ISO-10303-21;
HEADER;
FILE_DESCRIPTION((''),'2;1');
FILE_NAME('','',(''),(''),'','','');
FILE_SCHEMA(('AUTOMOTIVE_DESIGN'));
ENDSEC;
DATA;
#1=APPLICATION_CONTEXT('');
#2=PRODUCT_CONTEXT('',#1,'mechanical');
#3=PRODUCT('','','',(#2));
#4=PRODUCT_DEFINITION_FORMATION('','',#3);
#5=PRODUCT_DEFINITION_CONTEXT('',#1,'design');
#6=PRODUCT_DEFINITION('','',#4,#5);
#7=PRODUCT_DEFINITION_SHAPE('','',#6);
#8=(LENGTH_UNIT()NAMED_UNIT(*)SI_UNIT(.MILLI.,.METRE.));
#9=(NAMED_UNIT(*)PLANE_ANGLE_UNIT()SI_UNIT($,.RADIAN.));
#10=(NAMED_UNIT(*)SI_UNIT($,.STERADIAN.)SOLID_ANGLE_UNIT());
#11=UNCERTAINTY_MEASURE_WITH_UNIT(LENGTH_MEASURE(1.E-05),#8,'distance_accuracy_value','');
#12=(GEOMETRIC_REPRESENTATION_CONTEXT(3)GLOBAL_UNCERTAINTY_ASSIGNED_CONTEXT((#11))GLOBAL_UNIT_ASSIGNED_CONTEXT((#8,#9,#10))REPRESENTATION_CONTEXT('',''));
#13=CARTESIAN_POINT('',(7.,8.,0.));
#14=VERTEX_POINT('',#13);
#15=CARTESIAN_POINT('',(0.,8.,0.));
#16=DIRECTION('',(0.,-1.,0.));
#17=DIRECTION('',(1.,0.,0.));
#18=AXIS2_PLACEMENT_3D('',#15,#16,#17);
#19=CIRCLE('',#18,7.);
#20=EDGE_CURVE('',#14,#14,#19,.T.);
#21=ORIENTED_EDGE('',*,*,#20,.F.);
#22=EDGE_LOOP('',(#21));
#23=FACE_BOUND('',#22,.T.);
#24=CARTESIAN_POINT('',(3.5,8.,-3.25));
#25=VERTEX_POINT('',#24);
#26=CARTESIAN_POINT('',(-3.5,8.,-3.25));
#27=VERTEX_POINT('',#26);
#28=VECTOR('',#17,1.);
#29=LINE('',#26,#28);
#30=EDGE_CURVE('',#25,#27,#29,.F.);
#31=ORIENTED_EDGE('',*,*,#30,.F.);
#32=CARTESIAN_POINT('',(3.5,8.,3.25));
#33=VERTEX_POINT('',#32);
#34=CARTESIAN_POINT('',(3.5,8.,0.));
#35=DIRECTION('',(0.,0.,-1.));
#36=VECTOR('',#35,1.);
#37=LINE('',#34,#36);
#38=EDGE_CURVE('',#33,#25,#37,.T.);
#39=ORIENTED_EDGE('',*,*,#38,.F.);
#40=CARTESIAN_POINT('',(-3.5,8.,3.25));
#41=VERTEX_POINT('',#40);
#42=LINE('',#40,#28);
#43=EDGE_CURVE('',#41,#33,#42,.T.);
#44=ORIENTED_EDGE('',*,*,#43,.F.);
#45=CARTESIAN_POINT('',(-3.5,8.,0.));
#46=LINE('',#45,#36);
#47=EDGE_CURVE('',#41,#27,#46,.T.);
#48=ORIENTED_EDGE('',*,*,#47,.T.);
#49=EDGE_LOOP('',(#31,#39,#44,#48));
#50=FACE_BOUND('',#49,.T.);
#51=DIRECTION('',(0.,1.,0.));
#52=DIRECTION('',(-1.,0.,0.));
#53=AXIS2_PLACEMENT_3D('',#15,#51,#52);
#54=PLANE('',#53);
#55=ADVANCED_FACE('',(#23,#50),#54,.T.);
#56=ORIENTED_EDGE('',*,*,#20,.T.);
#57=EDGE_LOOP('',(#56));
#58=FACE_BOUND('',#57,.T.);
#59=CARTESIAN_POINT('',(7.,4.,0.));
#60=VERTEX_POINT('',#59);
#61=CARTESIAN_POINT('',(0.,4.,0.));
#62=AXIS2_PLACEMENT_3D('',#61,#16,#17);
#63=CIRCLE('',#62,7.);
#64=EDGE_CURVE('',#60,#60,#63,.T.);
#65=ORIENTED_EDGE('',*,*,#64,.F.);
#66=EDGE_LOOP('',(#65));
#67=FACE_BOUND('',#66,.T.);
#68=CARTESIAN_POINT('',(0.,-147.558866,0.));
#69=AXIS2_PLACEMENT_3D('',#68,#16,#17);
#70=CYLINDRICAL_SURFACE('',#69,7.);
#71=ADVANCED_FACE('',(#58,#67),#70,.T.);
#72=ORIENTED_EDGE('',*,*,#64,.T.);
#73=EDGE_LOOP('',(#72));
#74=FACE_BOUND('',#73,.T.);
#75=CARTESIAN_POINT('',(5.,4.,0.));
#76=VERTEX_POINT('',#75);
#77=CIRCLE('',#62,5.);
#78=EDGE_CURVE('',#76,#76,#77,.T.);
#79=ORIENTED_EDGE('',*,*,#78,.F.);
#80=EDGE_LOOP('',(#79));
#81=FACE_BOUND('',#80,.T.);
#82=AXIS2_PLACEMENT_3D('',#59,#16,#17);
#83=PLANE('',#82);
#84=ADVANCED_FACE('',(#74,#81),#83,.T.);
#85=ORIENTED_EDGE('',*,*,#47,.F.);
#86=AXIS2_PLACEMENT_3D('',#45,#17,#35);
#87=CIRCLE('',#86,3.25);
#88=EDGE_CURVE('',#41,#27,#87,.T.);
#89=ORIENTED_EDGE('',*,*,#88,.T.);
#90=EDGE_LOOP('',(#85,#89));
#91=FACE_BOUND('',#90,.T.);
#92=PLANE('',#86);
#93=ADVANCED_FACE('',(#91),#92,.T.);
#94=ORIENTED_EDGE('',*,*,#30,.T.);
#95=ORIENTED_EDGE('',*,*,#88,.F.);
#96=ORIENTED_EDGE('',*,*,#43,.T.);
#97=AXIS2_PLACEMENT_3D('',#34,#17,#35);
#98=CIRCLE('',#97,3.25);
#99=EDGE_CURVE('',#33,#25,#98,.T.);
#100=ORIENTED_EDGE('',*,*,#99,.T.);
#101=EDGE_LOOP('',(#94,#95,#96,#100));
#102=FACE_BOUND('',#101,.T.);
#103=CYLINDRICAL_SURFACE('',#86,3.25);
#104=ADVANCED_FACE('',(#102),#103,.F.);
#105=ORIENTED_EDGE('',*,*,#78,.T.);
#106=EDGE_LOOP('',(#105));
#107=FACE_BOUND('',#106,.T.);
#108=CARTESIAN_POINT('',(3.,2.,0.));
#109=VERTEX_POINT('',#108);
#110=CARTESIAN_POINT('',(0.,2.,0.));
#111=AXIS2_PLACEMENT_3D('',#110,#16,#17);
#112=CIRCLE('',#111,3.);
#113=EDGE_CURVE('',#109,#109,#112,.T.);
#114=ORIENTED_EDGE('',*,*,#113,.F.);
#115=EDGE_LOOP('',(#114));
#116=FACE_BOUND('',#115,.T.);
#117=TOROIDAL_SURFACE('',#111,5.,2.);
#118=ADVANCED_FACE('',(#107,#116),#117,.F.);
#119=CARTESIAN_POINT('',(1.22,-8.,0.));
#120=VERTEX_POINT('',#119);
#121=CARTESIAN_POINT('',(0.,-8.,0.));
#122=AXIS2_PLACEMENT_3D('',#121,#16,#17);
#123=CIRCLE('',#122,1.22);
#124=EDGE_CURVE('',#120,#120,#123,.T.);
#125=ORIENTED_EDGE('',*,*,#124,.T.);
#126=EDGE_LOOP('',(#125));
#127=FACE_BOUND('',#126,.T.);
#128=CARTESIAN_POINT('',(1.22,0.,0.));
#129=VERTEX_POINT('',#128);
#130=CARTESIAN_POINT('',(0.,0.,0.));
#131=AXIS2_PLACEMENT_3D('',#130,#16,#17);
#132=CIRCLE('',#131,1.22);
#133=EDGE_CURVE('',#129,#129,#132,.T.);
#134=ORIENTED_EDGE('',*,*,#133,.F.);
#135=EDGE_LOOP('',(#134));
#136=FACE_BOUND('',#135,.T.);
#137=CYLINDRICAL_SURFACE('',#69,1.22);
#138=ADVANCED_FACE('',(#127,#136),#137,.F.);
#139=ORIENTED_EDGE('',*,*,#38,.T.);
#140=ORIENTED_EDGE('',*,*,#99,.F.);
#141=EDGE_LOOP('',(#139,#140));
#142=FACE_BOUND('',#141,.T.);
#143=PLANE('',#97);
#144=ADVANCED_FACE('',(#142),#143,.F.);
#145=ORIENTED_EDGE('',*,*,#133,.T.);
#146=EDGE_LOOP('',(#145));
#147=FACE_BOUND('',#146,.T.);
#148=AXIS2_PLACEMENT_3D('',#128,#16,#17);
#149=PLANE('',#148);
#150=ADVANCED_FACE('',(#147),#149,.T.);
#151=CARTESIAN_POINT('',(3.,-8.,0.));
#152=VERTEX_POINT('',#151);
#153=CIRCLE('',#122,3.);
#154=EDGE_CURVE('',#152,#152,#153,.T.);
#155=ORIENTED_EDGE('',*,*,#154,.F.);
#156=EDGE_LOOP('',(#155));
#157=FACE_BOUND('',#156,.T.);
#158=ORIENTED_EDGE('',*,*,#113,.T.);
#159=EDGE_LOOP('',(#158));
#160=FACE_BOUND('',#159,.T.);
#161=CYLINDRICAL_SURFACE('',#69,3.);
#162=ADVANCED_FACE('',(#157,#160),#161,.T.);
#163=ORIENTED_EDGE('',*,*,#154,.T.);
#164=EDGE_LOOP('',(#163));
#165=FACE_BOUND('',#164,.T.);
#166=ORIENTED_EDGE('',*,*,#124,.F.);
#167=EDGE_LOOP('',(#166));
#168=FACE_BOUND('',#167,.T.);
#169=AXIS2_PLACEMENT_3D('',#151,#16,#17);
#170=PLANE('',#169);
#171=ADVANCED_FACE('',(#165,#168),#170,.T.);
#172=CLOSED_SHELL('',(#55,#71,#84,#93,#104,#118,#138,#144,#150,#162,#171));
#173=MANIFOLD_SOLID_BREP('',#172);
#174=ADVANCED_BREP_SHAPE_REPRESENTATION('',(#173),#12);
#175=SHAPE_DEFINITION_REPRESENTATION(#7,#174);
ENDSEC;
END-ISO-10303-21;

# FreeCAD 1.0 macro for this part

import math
import FreeCAD as App
import Part
import Sketcher
from FreeCAD import Vector

doc = App.newDocument("Part")
body = doc.addObject("PartDesign::Body", "Body")

sketch1 = body.newObject("Sketcher::SketchObject", "Sketch")
sketch1.AttachmentSupport = (doc.getObject("XY_Plane"), [""])
sketch1.MapMode = "FlatFace"
sketch1.addGeometry(Part.LineSegment(Vector(7, 8, 0), Vector(0, 8, 0)), False)
sketch1.addGeometry(Part.LineSegment(Vector(0, 8, 0), Vector(0, 0, 0)), False)
sketch1.addGeometry(Part.LineSegment(Vector(0, 0, 0), Vector(1.2, 0, 0)), False)
sketch1.addGeometry(Part.LineSegment(Vector(1.2, 0, 0), Vector(1.2, -8, 0)), False)
sketch1.addGeometry(Part.LineSegment(Vector(1.2, -8, 0), Vector(3, -8, 0)), False)
sketch1.addGeometry(Part.LineSegment(Vector(3, -8, 0), Vector(3, 2, 0)), False)
sketch1.addGeometry(Part.ArcOfCircle(Part.Circle(Vector(5, 2, 0), Vector(0, 0, 1), 2), math.radians(90), math.radians(180)), False)
sketch1.addGeometry(Part.LineSegment(Vector(5, 4, 0), Vector(7, 4, 0)), False)
sketch1.addGeometry(Part.LineSegment(Vector(7, 4, 0), Vector(7, 8, 0)), False)
sketch1.addConstraint(Sketcher.Constraint("Coincident", 0, 2, 1, 1))
sketch1.addConstraint(Sketcher.Constraint("Coincident", 1, 2, 2, 1))
sketch1.addConstraint(Sketcher.Constraint("Coincident", 2, 2, 3, 1))
sketch1.addConstraint(Sketcher.Constraint("Coincident", 3, 2, 4, 1))
sketch1.addConstraint(Sketcher.Constraint("Coincident", 4, 2, 5, 1))
sketch1.addConstraint(Sketcher.Constraint("Tangent", 5, 2, 6, 2))
sketch1.addConstraint(Sketcher.Constraint("Tangent", 6, 1, 7, 1))
sketch1.addConstraint(Sketcher.Constraint("Coincident", 7, 2, 8, 1))
sketch1.addConstraint(Sketcher.Constraint("Coincident", 8, 2, 0, 1))
sketch1.addConstraint(Sketcher.Constraint("Horizontal", 0))
sketch1.addConstraint(Sketcher.Constraint("Vertical", 1))
sketch1.addConstraint(Sketcher.Constraint("Horizontal", 2))
sketch1.addConstraint(Sketcher.Constraint("Vertical", 3))
sketch1.addConstraint(Sketcher.Constraint("Horizontal", 4))
sketch1.addConstraint(Sketcher.Constraint("Vertical", 5))
sketch1.addConstraint(Sketcher.Constraint("Horizontal", 7))
sketch1.addConstraint(Sketcher.Constraint("Vertical", 8))
sketch1.addConstraint(Sketcher.Constraint("Coincident", 1, 2, -1, 1))
sketch1.addConstraint(Sketcher.Constraint("Equal", 1, 3))
sketch1.addConstraint(Sketcher.Constraint("Radius", 6, 2.0))
sketch1.addConstraint(Sketcher.Constraint("DistanceX", 0, 2, 0, 1, 7.0))
sketch1.addConstraint(Sketcher.Constraint("DistanceX", 7, 1, 7, 2, 2.0))
sketch1.addConstraint(Sketcher.Constraint("DistanceY", 1, 2, 1, 1, 8.0))
sketch1.addConstraint(Sketcher.Constraint("DistanceY", 5, 1, 5, 2, 10.0))
sketch1.addConstraint(Sketcher.Constraint("DistanceX", 2, 1, 2, 2, 1.22))
revolution = body.newObject("PartDesign::Revolution", "Revolution")
revolution.Profile = sketch1
revolution.ReferenceAxis = (sketch1, ["V_Axis"])
revolution.Angle = 360

sketch2 = body.newObject("Sketcher::SketchObject", "Sketch001")
sketch2.AttachmentSupport = (doc.getObject("YZ_Plane"), [""])
sketch2.MapMode = "FlatFace"
sketch2.addGeometry(Part.Circle(Vector(8, 0, 0), Vector(0, 0, 1), 3.2), False)
sketch2.addConstraint(Sketcher.Constraint("PointOnObject", 0, 3, -1))
sketch2.addConstraint(Sketcher.Constraint("Diameter", 0, 6.5))
sketch2.addConstraint(Sketcher.Constraint("DistanceX", -1, 1, 0, 3, 8.0))
pocket1 = body.newObject("PartDesign::Pocket", "Pocket")
pocket1.Profile = sketch2
pocket1.Length = 7
pocket1.Midplane = True

doc.recompute()
